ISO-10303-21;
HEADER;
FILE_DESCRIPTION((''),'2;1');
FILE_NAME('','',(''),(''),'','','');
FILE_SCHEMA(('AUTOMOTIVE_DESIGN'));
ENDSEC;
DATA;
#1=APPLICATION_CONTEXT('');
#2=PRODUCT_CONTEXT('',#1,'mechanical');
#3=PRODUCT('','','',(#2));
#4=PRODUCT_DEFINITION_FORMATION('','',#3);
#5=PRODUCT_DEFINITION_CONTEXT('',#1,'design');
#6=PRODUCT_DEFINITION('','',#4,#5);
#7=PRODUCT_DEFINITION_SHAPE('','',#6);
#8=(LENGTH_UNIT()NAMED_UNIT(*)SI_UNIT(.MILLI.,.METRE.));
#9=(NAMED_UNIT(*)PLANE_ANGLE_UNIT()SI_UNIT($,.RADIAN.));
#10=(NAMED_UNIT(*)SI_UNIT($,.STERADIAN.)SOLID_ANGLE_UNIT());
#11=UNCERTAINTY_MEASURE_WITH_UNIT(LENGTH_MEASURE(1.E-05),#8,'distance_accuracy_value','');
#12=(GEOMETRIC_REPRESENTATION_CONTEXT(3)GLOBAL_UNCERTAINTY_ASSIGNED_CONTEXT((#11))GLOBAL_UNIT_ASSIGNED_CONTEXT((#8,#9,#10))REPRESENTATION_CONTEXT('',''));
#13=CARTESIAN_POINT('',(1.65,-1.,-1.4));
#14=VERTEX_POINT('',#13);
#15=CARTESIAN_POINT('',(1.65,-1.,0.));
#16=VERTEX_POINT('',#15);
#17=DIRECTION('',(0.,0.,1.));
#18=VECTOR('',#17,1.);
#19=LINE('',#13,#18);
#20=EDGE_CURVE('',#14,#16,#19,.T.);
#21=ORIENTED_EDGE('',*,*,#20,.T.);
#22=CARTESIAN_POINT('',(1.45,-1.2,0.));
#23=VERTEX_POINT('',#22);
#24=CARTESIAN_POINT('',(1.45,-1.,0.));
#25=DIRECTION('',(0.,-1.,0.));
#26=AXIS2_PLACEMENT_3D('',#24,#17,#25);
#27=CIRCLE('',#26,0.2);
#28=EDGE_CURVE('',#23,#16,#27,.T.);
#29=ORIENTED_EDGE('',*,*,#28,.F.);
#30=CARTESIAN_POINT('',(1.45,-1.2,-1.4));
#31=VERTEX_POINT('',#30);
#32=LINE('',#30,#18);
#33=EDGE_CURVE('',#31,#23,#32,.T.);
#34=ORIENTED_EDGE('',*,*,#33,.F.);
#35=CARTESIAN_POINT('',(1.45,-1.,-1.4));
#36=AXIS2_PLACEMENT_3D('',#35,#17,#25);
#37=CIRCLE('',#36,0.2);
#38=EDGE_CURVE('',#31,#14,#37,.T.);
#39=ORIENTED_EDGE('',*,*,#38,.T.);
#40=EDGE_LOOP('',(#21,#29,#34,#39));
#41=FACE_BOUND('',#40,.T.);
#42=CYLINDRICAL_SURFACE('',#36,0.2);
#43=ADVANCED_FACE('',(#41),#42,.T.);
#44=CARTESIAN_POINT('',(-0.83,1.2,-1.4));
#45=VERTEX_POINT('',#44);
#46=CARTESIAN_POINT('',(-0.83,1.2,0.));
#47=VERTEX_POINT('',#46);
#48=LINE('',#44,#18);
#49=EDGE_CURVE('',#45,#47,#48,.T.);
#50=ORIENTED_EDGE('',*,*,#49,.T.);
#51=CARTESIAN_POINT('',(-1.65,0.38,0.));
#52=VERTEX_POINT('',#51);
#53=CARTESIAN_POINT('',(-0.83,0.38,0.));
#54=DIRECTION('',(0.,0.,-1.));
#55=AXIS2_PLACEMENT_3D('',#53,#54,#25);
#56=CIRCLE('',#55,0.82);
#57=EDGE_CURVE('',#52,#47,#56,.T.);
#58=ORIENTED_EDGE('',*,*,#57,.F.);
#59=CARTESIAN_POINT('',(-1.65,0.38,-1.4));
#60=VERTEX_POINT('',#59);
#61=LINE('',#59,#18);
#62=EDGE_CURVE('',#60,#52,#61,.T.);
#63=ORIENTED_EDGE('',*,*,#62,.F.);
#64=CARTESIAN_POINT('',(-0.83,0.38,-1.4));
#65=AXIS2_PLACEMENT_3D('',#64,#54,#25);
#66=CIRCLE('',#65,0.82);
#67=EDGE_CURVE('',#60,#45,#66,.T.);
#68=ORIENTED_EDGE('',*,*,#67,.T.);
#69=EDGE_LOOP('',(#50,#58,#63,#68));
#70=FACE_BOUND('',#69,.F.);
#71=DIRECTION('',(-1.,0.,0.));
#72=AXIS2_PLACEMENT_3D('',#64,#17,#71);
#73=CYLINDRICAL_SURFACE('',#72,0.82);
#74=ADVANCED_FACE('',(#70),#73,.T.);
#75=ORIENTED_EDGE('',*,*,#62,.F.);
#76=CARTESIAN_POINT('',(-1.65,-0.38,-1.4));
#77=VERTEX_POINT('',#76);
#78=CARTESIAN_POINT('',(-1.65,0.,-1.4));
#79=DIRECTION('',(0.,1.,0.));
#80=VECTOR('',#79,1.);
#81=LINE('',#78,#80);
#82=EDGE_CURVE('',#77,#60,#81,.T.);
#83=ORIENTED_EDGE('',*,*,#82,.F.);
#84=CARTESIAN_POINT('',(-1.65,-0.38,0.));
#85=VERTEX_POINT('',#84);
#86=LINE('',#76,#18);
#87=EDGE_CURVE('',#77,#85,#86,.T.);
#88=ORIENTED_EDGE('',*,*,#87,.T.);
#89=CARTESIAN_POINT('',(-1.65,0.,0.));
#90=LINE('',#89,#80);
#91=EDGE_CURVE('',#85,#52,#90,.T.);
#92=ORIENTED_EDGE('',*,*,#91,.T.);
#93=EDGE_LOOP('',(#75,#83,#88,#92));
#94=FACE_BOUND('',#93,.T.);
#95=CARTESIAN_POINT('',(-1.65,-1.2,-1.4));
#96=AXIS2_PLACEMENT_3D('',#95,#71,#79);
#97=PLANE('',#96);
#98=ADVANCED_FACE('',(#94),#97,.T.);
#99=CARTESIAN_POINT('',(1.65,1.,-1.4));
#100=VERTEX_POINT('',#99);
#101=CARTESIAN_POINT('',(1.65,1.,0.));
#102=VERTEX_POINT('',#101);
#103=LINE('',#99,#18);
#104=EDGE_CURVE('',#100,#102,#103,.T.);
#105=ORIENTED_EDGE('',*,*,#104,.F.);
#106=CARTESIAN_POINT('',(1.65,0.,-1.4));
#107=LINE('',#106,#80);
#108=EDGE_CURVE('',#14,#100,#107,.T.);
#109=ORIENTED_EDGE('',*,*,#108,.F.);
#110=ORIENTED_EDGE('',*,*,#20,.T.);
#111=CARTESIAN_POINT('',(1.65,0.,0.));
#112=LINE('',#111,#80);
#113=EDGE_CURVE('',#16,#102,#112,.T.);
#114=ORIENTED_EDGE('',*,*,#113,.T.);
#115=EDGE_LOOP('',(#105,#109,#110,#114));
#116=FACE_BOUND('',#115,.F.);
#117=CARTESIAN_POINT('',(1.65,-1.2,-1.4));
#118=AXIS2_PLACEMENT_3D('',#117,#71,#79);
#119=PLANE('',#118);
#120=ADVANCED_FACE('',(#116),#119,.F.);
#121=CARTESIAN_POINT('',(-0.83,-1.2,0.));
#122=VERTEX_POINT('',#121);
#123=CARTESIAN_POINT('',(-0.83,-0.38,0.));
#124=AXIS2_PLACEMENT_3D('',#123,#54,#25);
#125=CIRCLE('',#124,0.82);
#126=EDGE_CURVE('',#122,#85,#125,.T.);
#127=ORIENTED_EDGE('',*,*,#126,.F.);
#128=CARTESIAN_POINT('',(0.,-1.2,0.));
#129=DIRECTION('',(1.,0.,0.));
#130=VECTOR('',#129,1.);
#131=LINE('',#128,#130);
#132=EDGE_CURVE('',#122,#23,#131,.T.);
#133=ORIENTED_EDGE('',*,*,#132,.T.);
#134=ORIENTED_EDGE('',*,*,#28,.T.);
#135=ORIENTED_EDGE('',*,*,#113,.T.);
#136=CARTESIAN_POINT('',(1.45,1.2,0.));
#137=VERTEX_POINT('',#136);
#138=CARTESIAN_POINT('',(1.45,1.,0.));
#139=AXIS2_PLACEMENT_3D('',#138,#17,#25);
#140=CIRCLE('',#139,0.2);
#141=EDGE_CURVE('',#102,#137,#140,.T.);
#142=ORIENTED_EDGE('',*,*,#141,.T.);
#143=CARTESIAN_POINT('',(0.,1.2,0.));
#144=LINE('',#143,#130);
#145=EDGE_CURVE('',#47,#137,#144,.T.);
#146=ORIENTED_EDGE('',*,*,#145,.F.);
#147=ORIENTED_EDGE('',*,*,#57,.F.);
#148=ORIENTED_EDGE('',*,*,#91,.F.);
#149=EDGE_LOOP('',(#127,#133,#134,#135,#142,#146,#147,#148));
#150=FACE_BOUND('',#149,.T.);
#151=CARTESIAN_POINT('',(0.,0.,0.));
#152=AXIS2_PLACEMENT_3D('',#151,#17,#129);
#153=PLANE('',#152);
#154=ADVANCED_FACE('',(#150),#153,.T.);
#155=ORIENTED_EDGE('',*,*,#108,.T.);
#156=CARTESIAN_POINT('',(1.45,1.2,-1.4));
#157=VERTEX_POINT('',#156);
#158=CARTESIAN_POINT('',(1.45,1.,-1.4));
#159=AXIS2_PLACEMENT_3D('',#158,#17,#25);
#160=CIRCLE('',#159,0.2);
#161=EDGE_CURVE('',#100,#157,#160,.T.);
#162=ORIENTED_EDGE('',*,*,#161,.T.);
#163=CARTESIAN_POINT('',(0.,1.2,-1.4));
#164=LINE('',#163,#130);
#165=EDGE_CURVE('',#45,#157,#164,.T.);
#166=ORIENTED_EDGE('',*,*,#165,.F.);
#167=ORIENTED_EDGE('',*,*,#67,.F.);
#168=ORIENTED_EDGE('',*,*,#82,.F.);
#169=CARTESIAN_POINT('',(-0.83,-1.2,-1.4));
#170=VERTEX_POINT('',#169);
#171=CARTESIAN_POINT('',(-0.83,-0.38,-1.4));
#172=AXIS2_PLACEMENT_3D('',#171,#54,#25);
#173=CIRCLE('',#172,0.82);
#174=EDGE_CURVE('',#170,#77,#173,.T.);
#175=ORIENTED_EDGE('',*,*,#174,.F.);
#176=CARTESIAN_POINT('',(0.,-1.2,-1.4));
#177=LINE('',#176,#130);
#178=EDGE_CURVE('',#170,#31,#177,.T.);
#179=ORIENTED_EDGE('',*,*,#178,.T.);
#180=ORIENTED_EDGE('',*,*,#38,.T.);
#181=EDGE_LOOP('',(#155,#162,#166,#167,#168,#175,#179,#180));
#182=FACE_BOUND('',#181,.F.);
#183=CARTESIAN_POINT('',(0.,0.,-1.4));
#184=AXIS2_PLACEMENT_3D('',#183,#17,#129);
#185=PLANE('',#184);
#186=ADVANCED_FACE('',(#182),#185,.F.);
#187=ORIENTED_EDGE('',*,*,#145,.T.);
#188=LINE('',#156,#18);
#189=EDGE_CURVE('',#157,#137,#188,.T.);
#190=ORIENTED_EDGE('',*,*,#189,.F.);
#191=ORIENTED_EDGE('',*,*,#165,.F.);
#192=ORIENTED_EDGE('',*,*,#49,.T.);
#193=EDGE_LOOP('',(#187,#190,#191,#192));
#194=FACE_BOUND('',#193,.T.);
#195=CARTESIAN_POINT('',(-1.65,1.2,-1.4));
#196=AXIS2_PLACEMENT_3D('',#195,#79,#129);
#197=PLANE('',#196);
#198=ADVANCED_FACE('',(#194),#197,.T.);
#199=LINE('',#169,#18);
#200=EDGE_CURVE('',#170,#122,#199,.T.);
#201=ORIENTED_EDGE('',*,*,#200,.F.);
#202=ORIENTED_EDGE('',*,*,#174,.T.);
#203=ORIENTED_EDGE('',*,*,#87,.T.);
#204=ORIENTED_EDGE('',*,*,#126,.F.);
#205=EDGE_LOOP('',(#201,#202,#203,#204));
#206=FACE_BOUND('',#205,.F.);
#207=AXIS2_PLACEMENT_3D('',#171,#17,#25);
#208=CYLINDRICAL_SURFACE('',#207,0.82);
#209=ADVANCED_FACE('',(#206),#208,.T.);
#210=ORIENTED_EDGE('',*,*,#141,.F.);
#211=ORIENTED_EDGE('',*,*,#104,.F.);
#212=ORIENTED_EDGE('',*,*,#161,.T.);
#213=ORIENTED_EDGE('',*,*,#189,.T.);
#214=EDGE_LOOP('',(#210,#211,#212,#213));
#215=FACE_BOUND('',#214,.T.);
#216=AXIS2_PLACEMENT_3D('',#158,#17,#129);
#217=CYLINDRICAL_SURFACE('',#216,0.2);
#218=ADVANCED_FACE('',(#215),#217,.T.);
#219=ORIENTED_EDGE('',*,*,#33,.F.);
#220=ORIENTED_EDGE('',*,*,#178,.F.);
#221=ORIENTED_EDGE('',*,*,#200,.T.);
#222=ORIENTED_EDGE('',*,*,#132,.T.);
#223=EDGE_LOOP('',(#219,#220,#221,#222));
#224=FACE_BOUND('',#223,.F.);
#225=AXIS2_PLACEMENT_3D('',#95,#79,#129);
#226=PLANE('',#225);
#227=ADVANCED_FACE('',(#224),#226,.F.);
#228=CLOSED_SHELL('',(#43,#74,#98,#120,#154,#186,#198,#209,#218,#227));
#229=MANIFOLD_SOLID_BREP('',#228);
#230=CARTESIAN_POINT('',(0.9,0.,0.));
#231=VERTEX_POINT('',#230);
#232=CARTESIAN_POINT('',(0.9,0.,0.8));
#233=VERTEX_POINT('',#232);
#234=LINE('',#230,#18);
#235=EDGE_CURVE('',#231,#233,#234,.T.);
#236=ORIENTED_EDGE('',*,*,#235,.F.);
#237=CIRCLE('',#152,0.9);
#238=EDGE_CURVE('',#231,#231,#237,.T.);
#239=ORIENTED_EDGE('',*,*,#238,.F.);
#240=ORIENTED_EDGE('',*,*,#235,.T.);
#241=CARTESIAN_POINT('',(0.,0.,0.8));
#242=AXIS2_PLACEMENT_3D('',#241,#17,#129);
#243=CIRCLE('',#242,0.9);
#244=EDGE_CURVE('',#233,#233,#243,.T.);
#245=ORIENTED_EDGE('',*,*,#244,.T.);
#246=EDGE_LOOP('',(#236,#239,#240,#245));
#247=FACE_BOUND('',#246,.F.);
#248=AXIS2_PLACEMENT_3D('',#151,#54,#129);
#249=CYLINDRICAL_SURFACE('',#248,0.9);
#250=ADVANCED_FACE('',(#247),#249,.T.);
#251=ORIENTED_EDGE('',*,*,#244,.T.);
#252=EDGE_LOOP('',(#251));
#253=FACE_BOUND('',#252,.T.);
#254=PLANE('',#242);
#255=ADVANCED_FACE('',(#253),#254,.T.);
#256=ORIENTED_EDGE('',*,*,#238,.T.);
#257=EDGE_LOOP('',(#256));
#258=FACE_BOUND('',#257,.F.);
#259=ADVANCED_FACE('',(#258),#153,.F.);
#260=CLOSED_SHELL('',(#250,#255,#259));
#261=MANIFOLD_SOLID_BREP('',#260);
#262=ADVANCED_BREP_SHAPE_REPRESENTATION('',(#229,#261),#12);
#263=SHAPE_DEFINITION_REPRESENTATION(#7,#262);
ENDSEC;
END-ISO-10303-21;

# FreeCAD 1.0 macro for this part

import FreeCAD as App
import Part
import Sketcher

V = App.Vector


def edges_at(feature, points):
    """Names of the edges that pass closest to the given points."""
    edges = feature.Shape.Edges
    near = lambda p: min(range(len(edges)), key=lambda i: edges[i].distToShape(Part.Vertex(*p))[0])
    return sorted({f"Edge{near(p) + 1}" for p in points})

doc = App.newDocument("Part")
body = doc.addObject("PartDesign::Body", "Body")

# Sketch on XY plane
sketch1 = body.newObject("Sketcher::SketchObject", "Sketch")
sketch1.AttachmentSupport = (doc.getObject("XY_Plane"), [""])
sketch1.MapMode = "FlatFace"
sketch1.addGeometry(Part.Circle(V(0, 0, 0), V(0, 0, 1), 0.9), False)
sketch1.addConstraint([
    Sketcher.Constraint("Coincident", 0, 3, -1, 1),
    Sketcher.Constraint("Diameter", 0, 1.8),
])
pad1 = body.newObject("PartDesign::Pad", "Pad")
pad1.Profile = sketch1
pad1.Length = 0.8
body2 = doc.addObject("PartDesign::Body", "Body001")

# Sketch on XY plane
sketch2 = body2.newObject("Sketcher::SketchObject", "Sketch001")
sketch2.AttachmentSupport = (doc.getObject("XY_Plane001"), [""])
sketch2.MapMode = "FlatFace"
sketch2.AttachmentOffset = App.Placement(V(0, 0, -1.4), App.Rotation())
sketch2.addGeometry([
    Part.LineSegment(V(-1.65, 1.2, 0), V(-1.65, -1.2, 0)),
    Part.LineSegment(V(-1.65, -1.2, 0), V(1.65, -1.2, 0)),
    Part.LineSegment(V(1.65, -1.2, 0), V(1.65, 1.2, 0)),
    Part.LineSegment(V(1.65, 1.2, 0), V(-1.65, 1.2, 0)),
], False)
sketch2.addConstraint([
    Sketcher.Constraint("Coincident", 0, 2, 1, 1),
    Sketcher.Constraint("Coincident", 1, 2, 2, 1),
    Sketcher.Constraint("Coincident", 2, 2, 3, 1),
    Sketcher.Constraint("Coincident", 3, 2, 0, 1),
    Sketcher.Constraint("Vertical", 0),
    Sketcher.Constraint("Horizontal", 1),
    Sketcher.Constraint("Vertical", 2),
    Sketcher.Constraint("Horizontal", 3),
    Sketcher.Constraint("Symmetric", 0, 2, 2, 2, -1, 1),
    Sketcher.Constraint("DistanceX", 1, 1, 1, 2, 3.3),
    Sketcher.Constraint("DistanceY", 0, 2, 0, 1, 2.4),
])
pad2 = body2.newObject("PartDesign::Pad", "Pad001")
pad2.Profile = sketch2
pad2.Length = 1.4
doc.recompute()

fillet = body2.newObject("PartDesign::Fillet", "Fillet")
fillet.Base = (pad2, edges_at(pad2, [(1.65, -1.2, -0.7), (1.65, 1.2, -0.7)]))
fillet.Radius = 0.2
doc.recompute()

fillet2 = body2.newObject("PartDesign::Fillet", "Fillet001")
fillet2.Base = (fillet, edges_at(fillet, [(-1.65, 1.2, -0.7), (-1.65, -1.2, -0.7)]))
fillet2.Radius = 0.82

doc.recompute()
